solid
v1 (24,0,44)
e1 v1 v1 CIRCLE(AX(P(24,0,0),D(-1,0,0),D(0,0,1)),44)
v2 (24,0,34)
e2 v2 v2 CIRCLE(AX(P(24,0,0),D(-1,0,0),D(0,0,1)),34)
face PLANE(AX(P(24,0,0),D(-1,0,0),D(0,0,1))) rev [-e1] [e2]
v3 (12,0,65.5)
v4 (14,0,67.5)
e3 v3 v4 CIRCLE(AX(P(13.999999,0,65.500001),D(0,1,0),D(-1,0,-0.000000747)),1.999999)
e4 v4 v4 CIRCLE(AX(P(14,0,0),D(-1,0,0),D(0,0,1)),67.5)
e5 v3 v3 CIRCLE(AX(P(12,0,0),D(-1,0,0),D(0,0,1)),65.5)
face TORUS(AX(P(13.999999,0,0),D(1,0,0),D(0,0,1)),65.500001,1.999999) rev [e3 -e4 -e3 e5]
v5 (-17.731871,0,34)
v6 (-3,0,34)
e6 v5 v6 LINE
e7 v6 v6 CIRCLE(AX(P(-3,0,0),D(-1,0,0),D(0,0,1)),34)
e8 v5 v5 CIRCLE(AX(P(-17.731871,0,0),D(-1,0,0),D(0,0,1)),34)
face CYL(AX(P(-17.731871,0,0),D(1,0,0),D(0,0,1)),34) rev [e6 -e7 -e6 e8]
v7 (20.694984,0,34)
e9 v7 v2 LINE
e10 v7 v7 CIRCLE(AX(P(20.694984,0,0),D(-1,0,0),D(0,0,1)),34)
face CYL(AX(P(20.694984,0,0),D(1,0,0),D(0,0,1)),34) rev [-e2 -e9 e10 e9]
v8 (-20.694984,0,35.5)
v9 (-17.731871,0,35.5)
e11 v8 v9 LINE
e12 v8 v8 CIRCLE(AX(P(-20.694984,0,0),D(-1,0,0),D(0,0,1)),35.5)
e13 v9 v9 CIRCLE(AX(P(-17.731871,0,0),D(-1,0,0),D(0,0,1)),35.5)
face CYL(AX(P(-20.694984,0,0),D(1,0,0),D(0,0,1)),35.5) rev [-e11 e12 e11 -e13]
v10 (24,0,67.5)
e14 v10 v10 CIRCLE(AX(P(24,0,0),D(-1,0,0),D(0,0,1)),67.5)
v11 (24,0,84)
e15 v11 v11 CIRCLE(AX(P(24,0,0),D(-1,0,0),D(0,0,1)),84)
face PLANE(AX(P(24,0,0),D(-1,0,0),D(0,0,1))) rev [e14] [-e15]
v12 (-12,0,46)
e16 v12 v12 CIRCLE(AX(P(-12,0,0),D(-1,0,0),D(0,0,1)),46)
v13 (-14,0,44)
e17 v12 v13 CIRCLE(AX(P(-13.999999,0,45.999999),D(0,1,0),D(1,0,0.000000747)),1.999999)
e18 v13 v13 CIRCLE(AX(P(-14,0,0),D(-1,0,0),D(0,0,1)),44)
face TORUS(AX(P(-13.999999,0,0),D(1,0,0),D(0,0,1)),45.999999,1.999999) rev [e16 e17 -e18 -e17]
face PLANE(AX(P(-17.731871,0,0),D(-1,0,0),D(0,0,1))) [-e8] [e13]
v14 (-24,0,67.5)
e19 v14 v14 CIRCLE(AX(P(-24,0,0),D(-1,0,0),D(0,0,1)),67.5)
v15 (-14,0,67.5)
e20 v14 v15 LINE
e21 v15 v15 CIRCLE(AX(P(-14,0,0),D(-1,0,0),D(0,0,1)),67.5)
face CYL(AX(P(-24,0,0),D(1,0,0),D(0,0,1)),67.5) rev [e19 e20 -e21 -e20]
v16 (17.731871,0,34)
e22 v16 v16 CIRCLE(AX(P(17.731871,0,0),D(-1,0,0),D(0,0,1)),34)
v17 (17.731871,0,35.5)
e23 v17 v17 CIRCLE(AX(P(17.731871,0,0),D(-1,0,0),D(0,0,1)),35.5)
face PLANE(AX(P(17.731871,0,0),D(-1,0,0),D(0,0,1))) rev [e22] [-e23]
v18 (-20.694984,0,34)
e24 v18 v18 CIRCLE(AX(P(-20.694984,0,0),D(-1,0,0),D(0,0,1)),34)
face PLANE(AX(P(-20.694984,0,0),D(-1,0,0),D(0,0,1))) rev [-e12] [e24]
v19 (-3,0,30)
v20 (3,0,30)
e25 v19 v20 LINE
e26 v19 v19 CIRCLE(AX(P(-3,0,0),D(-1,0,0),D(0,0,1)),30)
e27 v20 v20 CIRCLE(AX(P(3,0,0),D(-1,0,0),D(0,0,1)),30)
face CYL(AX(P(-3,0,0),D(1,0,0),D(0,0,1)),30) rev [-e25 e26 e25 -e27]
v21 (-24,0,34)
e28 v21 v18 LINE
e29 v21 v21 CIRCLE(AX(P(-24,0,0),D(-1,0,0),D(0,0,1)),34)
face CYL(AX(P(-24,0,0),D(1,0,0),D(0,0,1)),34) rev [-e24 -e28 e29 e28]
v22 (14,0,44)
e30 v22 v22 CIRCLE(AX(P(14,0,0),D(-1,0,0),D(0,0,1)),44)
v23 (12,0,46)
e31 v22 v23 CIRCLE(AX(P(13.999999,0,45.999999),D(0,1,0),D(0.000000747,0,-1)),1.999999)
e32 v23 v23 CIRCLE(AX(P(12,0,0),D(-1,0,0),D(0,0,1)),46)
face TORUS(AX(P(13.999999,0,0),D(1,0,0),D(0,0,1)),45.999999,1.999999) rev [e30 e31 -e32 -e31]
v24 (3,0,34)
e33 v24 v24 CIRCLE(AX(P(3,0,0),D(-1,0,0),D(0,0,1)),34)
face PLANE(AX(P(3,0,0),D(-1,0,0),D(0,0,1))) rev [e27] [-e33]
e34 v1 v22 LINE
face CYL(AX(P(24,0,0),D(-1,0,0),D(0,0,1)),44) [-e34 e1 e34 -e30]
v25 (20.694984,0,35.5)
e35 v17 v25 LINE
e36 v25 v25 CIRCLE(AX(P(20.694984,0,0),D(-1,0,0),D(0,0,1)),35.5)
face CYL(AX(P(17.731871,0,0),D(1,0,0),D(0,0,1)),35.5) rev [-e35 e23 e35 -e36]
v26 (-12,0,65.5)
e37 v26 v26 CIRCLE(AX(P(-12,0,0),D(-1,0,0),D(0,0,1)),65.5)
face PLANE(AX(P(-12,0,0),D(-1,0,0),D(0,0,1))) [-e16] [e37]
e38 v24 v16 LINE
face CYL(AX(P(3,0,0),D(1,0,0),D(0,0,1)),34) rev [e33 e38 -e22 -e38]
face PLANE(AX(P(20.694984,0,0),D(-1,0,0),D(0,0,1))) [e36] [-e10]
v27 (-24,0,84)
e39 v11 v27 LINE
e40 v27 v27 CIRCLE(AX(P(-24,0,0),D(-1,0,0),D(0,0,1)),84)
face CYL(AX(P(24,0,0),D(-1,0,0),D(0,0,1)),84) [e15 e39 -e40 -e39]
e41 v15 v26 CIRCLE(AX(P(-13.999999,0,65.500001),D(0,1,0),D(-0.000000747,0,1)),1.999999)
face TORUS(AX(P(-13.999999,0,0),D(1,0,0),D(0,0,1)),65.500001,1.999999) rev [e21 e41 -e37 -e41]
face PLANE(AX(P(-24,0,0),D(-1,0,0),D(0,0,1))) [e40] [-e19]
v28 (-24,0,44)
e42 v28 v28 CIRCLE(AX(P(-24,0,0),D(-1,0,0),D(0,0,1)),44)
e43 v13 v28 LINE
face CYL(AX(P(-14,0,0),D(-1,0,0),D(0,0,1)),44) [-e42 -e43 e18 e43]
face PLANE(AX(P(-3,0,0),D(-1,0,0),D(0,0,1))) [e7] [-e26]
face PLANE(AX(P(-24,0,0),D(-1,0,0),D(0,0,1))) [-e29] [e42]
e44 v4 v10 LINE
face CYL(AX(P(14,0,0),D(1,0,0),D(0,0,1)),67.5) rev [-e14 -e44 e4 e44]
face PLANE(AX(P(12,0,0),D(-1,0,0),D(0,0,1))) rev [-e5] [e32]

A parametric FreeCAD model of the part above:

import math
import FreeCAD as App
import Part
import Sketcher

doc = App.newDocument("Part")
params = doc.addObject("Spreadsheet::Sheet", "Params")
for row, (alias, value) in enumerate([
    ("sketch1_radius", "1.999999 mm"),
    ("sketch1_width", "10 mm"),
    ("sketch1_width2", "6 mm"),
    ("sketch1_width3", "48 mm"),
    ("sketch1_height", "4 mm"),
    ("revolution_angle", "360 deg"),
], start=1):
    params.set(f"A{row}", alias)
    params.set(f"B{row}", "=" + value)
    params.setAlias(f"B{row}", alias)

body = doc.addObject("PartDesign::Body", "Body")

sketch1 = body.newObject("Sketcher::SketchObject", "Sketch")
sketch1.AttachmentSupport = (doc.getObject("XZ_Plane"), [""])
sketch1.MapMode = "FlatFace"
sketch1.addGeometry([
    Part.LineSegment(App.Vector(-24, 84, 0), App.Vector(-24, 67.5, 0)),
    Part.LineSegment(App.Vector(-24, 67.5, 0), App.Vector(-14, 67.5, 0)),
    Part.ArcOfCircle(Part.Circle(App.Vector(-13.999999, 65.500001, 0), App.Vector(0, 0, 1), 1.999999), math.radians(-0.000043), math.radians(90.000043)),
    Part.LineSegment(App.Vector(-12, 65.5, 0), App.Vector(-12, 46, 0)),
    Part.ArcOfCircle(Part.Circle(App.Vector(-13.999999, 45.999999, 0), App.Vector(0, 0, 1), 1.999999), math.radians(-90.000043), math.radians(0.000043)),
    Part.LineSegment(App.Vector(-14, 44, 0), App.Vector(-24, 44, 0)),
    Part.LineSegment(App.Vector(-24, 44, 0), App.Vector(-24, 34, 0)),
    Part.LineSegment(App.Vector(-24, 34, 0), App.Vector(-20.694984, 34, 0)),
    Part.LineSegment(App.Vector(-20.694984, 34, 0), App.Vector(-20.694984, 35.5, 0)),
    Part.LineSegment(App.Vector(-20.694984, 35.5, 0), App.Vector(-17.731871, 35.5, 0)),
    Part.LineSegment(App.Vector(-17.731871, 35.5, 0), App.Vector(-17.731871, 34, 0)),
    Part.LineSegment(App.Vector(-17.731871, 34, 0), App.Vector(-3, 34, 0)),
    Part.LineSegment(App.Vector(-3, 34, 0), App.Vector(-3, 30, 0)),
    Part.LineSegment(App.Vector(-3, 30, 0), App.Vector(3, 30, 0)),
    Part.LineSegment(App.Vector(3, 30, 0), App.Vector(3, 34, 0)),
    Part.LineSegment(App.Vector(3, 34, 0), App.Vector(17.731871, 34, 0)),
    Part.LineSegment(App.Vector(17.731871, 34, 0), App.Vector(17.731871, 35.5, 0)),
    Part.LineSegment(App.Vector(17.731871, 35.5, 0), App.Vector(20.694984, 35.5, 0)),
    Part.LineSegment(App.Vector(20.694984, 35.5, 0), App.Vector(20.694984, 34, 0)),
    Part.LineSegment(App.Vector(20.694984, 34, 0), App.Vector(24, 34, 0)),
    Part.LineSegment(App.Vector(24, 34, 0), App.Vector(24, 44, 0)),
    Part.LineSegment(App.Vector(24, 44, 0), App.Vector(14, 44, 0)),
    Part.ArcOfCircle(Part.Circle(App.Vector(13.999999, 45.999999, 0), App.Vector(0, 0, 1), 1.999999), math.radians(179.999957), math.radians(270.000043)),
    Part.LineSegment(App.Vector(12, 46, 0), App.Vector(12, 65.5, 0)),
    Part.ArcOfCircle(Part.Circle(App.Vector(13.999999, 65.500001, 0), App.Vector(0, 0, 1), 1.999999), math.radians(89.999957), math.radians(180.000043)),
    Part.LineSegment(App.Vector(14, 67.5, 0), App.Vector(24, 67.5, 0)),
    Part.LineSegment(App.Vector(24, 67.5, 0), App.Vector(24, 84, 0)),
    Part.LineSegment(App.Vector(24, 84, 0), App.Vector(-24, 84, 0)),
], False)
sketch1.addConstraint([
    Sketcher.Constraint("Coincident", 0, 2, 1, 1),
    Sketcher.Constraint("Tangent", 1, 2, 2, 2),
    Sketcher.Constraint("Tangent", 2, 1, 3, 1),
    Sketcher.Constraint("Tangent", 3, 2, 4, 2),
    Sketcher.Constraint("Tangent", 4, 1, 5, 1),
    Sketcher.Constraint("Coincident", 5, 2, 6, 1),
    Sketcher.Constraint("Coincident", 6, 2, 7, 1),
    Sketcher.Constraint("Coincident", 7, 2, 8, 1),
    Sketcher.Constraint("Coincident", 8, 2, 9, 1),
    Sketcher.Constraint("Coincident", 9, 2, 10, 1),
    Sketcher.Constraint("Coincident", 10, 2, 11, 1),
    Sketcher.Constraint("Coincident", 11, 2, 12, 1),
    Sketcher.Constraint("Coincident", 12, 2, 13, 1),
    Sketcher.Constraint("Coincident", 13, 2, 14, 1),
    Sketcher.Constraint("Coincident", 14, 2, 15, 1),
    Sketcher.Constraint("Coincident", 15, 2, 16, 1),
    Sketcher.Constraint("Coincident", 16, 2, 17, 1),
    Sketcher.Constraint("Coincident", 17, 2, 18, 1),
    Sketcher.Constraint("Coincident", 18, 2, 19, 1),
    Sketcher.Constraint("Coincident", 19, 2, 20, 1),
    Sketcher.Constraint("Coincident", 20, 2, 21, 1),
    Sketcher.Constraint("Tangent", 21, 2, 22, 2),
    Sketcher.Constraint("Tangent", 22, 1, 23, 1),
    Sketcher.Constraint("Tangent", 23, 2, 24, 2),
    Sketcher.Constraint("Tangent", 24, 1, 25, 1),
    Sketcher.Constraint("Coincident", 25, 2, 26, 1),
    Sketcher.Constraint("Coincident", 26, 2, 27, 1),
    Sketcher.Constraint("Coincident", 27, 2, 0, 1),
    Sketcher.Constraint("Vertical", 0),
    Sketcher.Constraint("Horizontal", 1),
    Sketcher.Constraint("Vertical", 3),
    Sketcher.Constraint("Horizontal", 5),
    Sketcher.Constraint("Vertical", 6),
    Sketcher.Constraint("Horizontal", 7),
    Sketcher.Constraint("Vertical", 8),
    Sketcher.Constraint("Horizontal", 9),
    Sketcher.Constraint("Vertical", 10),
    Sketcher.Constraint("Horizontal", 11),
    Sketcher.Constraint("Vertical", 12),
    Sketcher.Constraint("Horizontal", 13),
    Sketcher.Constraint("Vertical", 14),
    Sketcher.Constraint("Horizontal", 15),
    Sketcher.Constraint("Vertical", 16),
    Sketcher.Constraint("Horizontal", 17),
    Sketcher.Constraint("Vertical", 18),
    Sketcher.Constraint("Horizontal", 19),
    Sketcher.Constraint("Vertical", 20),
    Sketcher.Constraint("Horizontal", 21),
    Sketcher.Constraint("Vertical", 23),
    Sketcher.Constraint("Horizontal", 25),
    Sketcher.Constraint("Vertical", 26),
    Sketcher.Constraint("Horizontal", 27),
    Sketcher.Constraint("Equal", 2, 4),
    Sketcher.Constraint("Equal", 4, 22),
    Sketcher.Constraint("Equal", 22, 24),
    Sketcher.Constraint("Symmetric", 4, 3, 22, 3, -2),
    Sketcher.Constraint("Symmetric", 11, 2, 14, 2, -2),
    Sketcher.Constraint("Symmetric", 9, 2, 16, 2, -2),
    Sketcher.Constraint("Symmetric", 7, 2, 18, 2, -2),
    Sketcher.Constraint("Symmetric", 0, 2, 25, 2, -2),
    Sketcher.Constraint("Horizontal", 7, 2, 10, 2),
    Sketcher.Constraint("Vertical", 0, 2, 5, 2),
    Sketcher.Constraint("Vertical", 20, 2, 25, 2),
    Sketcher.Constraint("Equal", 25, 6),
    Sketcher.Constraint("Radius", 2, 1.999999),
    Sketcher.Constraint("DistanceX", 1, 1, 1, 2, 10.0),
    Sketcher.Constraint("DistanceX", 13, 1, 13, 2, 6.0),
    Sketcher.Constraint("DistanceX", 27, 2, 27, 1, 48.0),
    Sketcher.Constraint("DistanceY", 12, 2, 12, 1, 4.0),
    Sketcher.Constraint("DistanceY", 0, 2, 0, 1, 16.5),
    Sketcher.Constraint("DistanceY", 3, 2, 3, 1, 19.5),
    Sketcher.Constraint("DistanceY", 8, 1, 8, 2, 1.5),
    Sketcher.Constraint("DistanceY", -1, 1, 4, 3, 45.999999),
    Sketcher.Constraint("DistanceX", 11, 1, 11, 2, 14.731871),
    Sketcher.Constraint("DistanceX", 7, 1, 7, 2, 3.305016),
])
sketch1.setExpression("Constraints[64]", "Params.sketch1_radius")
sketch1.setExpression("Constraints[65]", "Params.sketch1_width")
sketch1.setExpression("Constraints[66]", "Params.sketch1_width2")
sketch1.setExpression("Constraints[67]", "Params.sketch1_width3")
sketch1.setExpression("Constraints[68]", "Params.sketch1_height")
revolution = body.newObject("PartDesign::Revolution", "Revolution")
revolution.Profile = sketch1
revolution.ReferenceAxis = (sketch1, ["H_Axis"])
revolution.setExpression("Angle", "Params.revolution_angle")

doc.recompute()
